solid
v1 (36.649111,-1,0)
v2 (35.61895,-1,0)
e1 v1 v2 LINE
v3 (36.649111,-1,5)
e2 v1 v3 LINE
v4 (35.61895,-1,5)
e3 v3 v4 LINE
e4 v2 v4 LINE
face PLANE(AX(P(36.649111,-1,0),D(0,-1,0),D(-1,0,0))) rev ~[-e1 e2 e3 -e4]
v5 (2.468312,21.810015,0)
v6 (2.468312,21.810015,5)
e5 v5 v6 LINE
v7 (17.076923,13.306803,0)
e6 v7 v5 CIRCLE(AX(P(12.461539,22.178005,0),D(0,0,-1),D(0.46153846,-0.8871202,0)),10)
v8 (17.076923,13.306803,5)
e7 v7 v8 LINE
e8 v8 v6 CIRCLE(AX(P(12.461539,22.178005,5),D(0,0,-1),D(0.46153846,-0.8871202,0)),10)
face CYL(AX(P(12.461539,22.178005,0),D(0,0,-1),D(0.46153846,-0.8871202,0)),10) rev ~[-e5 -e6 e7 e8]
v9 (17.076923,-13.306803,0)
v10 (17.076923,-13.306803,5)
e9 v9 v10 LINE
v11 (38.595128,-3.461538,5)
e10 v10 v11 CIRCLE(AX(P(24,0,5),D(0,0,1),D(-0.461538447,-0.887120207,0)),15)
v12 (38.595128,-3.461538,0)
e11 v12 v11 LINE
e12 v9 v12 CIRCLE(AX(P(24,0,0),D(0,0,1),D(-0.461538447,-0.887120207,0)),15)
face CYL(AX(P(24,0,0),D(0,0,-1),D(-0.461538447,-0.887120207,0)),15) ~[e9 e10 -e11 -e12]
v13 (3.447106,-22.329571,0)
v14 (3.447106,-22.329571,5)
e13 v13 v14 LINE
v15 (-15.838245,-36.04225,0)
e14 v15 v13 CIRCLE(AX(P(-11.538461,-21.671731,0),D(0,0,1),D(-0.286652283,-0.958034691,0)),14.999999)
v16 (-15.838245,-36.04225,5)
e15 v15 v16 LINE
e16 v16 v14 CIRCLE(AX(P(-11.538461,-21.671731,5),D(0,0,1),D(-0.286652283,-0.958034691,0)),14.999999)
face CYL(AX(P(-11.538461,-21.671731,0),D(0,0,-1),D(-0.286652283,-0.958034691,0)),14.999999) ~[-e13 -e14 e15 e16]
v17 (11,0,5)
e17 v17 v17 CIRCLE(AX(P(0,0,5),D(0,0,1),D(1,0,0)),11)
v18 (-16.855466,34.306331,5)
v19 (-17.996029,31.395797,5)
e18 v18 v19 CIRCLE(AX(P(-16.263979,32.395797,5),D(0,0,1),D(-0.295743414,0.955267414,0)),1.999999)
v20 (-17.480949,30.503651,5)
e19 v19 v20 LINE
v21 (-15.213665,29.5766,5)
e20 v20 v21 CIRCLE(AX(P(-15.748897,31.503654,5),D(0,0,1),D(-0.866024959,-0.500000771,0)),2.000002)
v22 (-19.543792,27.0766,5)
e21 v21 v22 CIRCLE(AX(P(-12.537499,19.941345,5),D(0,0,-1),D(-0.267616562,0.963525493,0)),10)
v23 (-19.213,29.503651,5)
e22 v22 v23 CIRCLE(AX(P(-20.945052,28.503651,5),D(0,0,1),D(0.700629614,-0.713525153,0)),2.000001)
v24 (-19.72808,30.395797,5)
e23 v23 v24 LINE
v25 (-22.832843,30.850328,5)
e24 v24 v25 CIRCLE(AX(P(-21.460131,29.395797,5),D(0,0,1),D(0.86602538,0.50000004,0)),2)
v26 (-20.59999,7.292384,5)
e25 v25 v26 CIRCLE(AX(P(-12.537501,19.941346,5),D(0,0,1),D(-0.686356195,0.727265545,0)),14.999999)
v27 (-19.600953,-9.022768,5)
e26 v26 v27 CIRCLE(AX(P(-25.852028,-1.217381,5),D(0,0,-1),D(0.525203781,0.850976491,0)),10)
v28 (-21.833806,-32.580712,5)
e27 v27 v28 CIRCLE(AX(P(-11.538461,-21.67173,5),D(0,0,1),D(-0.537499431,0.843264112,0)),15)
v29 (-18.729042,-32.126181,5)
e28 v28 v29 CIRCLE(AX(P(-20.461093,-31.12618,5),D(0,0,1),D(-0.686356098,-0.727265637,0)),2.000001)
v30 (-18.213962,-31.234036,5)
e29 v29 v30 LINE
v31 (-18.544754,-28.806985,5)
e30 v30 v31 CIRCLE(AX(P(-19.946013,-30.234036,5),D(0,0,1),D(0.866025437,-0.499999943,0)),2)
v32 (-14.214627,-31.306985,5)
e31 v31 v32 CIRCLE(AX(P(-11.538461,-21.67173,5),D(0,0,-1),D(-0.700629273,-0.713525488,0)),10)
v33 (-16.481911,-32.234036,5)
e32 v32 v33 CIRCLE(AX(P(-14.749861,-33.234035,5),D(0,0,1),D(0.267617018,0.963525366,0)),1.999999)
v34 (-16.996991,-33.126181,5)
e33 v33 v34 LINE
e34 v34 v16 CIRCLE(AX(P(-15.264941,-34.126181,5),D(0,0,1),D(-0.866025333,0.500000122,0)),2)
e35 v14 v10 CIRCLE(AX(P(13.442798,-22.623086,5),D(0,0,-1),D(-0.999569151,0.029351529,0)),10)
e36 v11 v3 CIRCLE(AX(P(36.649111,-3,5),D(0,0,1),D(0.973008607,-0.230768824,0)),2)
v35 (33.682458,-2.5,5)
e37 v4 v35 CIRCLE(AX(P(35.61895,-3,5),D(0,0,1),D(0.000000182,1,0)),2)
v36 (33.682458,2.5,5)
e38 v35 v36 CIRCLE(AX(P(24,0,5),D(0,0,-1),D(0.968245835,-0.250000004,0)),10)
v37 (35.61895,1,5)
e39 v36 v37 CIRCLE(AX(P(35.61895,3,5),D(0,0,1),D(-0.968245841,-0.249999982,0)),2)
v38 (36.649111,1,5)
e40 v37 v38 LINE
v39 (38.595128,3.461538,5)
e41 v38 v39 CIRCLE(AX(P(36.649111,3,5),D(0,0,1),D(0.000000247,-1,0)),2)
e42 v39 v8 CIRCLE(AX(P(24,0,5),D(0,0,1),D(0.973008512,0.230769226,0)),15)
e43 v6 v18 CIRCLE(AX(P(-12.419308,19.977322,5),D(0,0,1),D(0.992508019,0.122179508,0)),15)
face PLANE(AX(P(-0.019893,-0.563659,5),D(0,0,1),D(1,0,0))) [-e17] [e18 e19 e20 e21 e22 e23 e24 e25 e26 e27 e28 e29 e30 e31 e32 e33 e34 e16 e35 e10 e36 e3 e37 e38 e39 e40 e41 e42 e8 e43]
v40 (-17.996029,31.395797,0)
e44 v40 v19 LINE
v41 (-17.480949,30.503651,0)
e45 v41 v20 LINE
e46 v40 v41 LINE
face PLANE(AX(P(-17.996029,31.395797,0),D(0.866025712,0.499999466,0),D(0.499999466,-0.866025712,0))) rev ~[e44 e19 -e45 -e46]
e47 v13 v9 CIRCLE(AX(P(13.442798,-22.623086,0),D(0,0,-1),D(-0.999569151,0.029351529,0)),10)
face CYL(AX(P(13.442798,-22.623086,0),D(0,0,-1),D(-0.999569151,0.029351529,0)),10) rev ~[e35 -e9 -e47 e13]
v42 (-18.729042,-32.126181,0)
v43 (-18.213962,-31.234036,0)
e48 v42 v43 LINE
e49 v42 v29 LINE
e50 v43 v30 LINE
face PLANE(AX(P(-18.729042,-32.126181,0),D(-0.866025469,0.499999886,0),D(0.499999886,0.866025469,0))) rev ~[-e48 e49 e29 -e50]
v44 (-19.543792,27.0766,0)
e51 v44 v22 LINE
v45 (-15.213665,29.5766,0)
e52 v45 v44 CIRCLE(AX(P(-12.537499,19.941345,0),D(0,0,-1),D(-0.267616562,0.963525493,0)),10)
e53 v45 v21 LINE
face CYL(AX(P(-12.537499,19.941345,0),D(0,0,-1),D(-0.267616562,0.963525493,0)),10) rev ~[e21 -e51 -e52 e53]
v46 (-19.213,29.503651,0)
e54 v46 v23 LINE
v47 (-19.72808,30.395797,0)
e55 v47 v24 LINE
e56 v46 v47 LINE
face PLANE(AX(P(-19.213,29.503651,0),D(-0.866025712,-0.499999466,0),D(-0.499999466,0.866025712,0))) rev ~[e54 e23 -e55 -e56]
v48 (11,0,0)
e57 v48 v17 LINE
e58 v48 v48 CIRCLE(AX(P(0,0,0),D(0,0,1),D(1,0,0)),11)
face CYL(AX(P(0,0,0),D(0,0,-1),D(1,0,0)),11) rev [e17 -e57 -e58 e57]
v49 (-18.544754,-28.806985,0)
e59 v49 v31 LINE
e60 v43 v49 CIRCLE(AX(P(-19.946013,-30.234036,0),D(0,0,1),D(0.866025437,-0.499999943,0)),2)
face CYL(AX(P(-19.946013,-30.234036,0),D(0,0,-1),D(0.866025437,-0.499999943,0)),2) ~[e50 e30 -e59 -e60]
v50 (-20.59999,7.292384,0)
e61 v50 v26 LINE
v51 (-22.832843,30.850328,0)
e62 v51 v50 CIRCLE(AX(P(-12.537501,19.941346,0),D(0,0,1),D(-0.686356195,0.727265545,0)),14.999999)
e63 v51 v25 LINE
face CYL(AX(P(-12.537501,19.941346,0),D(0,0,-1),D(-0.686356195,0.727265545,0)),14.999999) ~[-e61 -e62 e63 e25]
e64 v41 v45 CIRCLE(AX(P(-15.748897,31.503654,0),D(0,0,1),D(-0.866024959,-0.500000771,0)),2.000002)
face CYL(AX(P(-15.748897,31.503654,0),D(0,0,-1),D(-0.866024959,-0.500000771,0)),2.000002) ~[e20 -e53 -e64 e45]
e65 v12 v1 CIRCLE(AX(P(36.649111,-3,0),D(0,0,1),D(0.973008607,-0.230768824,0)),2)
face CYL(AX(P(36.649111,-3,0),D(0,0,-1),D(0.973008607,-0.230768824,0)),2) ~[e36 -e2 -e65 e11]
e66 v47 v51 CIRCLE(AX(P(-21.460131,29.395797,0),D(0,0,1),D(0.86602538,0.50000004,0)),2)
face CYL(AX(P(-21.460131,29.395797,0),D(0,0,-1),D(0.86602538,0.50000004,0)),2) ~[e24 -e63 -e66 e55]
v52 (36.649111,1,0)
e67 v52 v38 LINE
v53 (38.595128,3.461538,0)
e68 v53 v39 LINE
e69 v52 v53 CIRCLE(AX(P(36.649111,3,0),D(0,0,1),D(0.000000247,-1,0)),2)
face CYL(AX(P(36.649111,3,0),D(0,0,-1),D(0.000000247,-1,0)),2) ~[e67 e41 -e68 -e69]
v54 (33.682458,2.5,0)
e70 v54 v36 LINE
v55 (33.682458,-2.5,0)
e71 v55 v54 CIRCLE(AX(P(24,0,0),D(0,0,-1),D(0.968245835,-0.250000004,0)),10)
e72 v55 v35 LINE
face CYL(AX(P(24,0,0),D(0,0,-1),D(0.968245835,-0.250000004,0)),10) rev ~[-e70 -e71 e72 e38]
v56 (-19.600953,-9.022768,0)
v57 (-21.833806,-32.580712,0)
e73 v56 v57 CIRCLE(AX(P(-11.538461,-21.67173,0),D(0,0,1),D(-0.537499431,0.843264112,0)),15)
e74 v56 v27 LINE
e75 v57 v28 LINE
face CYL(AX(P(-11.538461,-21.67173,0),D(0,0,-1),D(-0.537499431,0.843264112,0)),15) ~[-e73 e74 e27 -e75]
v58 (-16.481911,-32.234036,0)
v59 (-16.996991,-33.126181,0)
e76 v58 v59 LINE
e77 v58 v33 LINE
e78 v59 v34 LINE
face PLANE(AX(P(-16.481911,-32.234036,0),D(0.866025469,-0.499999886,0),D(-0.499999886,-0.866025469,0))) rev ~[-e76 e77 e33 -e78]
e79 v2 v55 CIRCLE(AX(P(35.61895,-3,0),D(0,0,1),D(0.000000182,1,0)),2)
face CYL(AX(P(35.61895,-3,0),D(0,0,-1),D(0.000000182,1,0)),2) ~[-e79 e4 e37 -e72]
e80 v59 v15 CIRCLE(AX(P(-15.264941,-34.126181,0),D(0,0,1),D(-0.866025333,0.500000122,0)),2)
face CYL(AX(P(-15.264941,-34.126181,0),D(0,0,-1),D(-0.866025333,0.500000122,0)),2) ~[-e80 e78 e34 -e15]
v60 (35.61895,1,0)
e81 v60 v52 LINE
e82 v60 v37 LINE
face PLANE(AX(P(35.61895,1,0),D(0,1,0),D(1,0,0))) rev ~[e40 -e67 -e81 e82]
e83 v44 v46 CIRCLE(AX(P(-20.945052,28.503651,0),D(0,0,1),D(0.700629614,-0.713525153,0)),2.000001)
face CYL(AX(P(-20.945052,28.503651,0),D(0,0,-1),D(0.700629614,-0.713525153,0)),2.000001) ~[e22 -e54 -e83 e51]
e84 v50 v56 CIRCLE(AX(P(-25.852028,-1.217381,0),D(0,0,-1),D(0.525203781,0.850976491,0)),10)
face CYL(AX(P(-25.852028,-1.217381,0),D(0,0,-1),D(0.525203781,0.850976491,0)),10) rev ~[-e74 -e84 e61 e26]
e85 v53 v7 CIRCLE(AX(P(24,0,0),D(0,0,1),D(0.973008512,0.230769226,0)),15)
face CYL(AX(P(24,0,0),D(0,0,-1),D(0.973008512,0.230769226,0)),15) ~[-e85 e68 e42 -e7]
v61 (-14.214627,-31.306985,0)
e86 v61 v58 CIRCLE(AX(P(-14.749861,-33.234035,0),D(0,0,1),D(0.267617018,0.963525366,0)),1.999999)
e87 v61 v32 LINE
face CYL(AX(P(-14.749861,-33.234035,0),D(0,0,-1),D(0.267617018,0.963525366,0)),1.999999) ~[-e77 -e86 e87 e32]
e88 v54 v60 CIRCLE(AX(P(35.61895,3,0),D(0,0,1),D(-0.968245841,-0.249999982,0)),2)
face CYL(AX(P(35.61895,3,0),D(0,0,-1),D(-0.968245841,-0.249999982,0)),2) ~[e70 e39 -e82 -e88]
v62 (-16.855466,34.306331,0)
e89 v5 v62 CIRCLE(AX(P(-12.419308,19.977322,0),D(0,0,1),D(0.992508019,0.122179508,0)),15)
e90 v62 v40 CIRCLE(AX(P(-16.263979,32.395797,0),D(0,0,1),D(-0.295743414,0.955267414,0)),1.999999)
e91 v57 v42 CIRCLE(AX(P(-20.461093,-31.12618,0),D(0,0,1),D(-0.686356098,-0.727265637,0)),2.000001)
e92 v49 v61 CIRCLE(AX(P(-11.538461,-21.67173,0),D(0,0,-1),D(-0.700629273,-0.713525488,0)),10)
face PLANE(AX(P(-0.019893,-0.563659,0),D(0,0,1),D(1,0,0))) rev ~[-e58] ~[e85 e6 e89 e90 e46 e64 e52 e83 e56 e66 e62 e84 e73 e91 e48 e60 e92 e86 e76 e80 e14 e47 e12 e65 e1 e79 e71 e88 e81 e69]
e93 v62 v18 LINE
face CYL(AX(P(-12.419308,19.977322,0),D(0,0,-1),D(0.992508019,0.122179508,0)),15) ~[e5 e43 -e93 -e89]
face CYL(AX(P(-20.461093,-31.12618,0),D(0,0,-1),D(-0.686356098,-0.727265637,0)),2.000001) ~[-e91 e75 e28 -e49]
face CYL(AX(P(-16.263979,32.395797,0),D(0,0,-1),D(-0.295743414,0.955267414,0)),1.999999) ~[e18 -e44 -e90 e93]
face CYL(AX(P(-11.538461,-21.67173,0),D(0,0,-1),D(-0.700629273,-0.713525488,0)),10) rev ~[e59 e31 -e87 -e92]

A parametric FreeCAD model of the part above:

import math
import FreeCAD as App
import Part
import Sketcher
Q = App.Units.Quantity

doc = App.newDocument("Part")
body = doc.addObject("PartDesign::Body", "Body")

# Sketch on XY plane
sketch1 = doc.addObject("Sketcher::SketchObject", "Sketch")
body.addObject(sketch1)
sketch1.AttachmentSupport = (doc.XY_Plane, [""])
sketch1.MapMode = "FlatFace"
sketch1.addGeometry(Part.ArcOfCircle(Part.Circle(App.Vector(24, 0, 0), App.Vector(0, 0, 1), 10), math.radians(14), math.radians(346)), False)
sketch1.addGeometry(Part.ArcOfCircle(Part.Circle(App.Vector(35.6, 3, 0), App.Vector(0, 0, 1), 2), math.radians(-166), math.radians(-90)), False)
sketch1.addGeometry(Part.LineSegment(App.Vector(35.6, 1, 0), App.Vector(36.6, 1, 0)), False)
sketch1.addGeometry(Part.ArcOfCircle(Part.Circle(App.Vector(36.6, 3, 0), App.Vector(0, 0, 1), 2), math.radians(-90), math.radians(13)), False)
sketch1.addGeometry(Part.ArcOfCircle(Part.Circle(App.Vector(24, 0, 0), App.Vector(0, 0, 1), 15), math.radians(13), math.radians(117)), False)
sketch1.addGeometry(Part.ArcOfCircle(Part.Circle(App.Vector(12.5, 22.2, 0), App.Vector(0, 0, 1), 10), math.radians(-178), math.radians(-63)), False)
sketch1.addGeometry(Part.ArcOfCircle(Part.Circle(App.Vector(-12.4, 20, 0), App.Vector(0, 0, 1), 15), math.radians(7), math.radians(107)), False)
sketch1.addGeometry(Part.ArcOfCircle(Part.Circle(App.Vector(-16.3, 32.4, 0), App.Vector(0, 0, 1), 2), math.radians(107), math.radians(210)), False)
sketch1.addGeometry(Part.LineSegment(App.Vector(-18, 31.4, 0), App.Vector(-17.5, 30.5, 0)), False)
sketch1.addGeometry(Part.ArcOfCircle(Part.Circle(App.Vector(-15.7, 31.5, 0), App.Vector(0, 0, 1), 2), math.radians(-150), math.radians(-74)), False)
sketch1.addGeometry(Part.ArcOfCircle(Part.Circle(App.Vector(-12.5, 19.9, 0), App.Vector(0, 0, 1), 10), math.radians(134), math.radians(466)), False)
sketch1.addGeometry(Part.ArcOfCircle(Part.Circle(App.Vector(-20.9, 28.5, 0), App.Vector(0, 0, 1), 2), math.radians(-46), math.radians(30)), False)
sketch1.addGeometry(Part.LineSegment(App.Vector(-19.2, 29.5, 0), App.Vector(-19.7, 30.4, 0)), False)
sketch1.addGeometry(Part.ArcOfCircle(Part.Circle(App.Vector(-21.5, 29.4, 0), App.Vector(0, 0, 1), 2), math.radians(30), math.radians(133)), False)
sketch1.addGeometry(Part.ArcOfCircle(Part.Circle(App.Vector(-12.5, 19.9, 0), App.Vector(0, 0, 1), 15), math.radians(133), math.radians(237)), False)
sketch1.addGeometry(Part.ArcOfCircle(Part.Circle(App.Vector(-25.9, -1.2, 0), App.Vector(0, 0, 1), 10), math.radians(-51), math.radians(58)), False)
sketch1.addGeometry(Part.ArcOfCircle(Part.Circle(App.Vector(-11.5, -21.7, 0), App.Vector(0, 0, 1), 15), math.radians(123), math.radians(227)), False)
sketch1.addGeometry(Part.ArcOfCircle(Part.Circle(App.Vector(-20.5, -31.1, 0), App.Vector(0, 0, 1), 2), math.radians(-133), math.radians(-30)), False)
sketch1.addGeometry(Part.LineSegment(App.Vector(-18.7, -32.1, 0), App.Vector(-18.2, -31.2, 0)), False)
sketch1.addGeometry(Part.ArcOfCircle(Part.Circle(App.Vector(-19.9, -30.2, 0), App.Vector(0, 0, 1), 2), math.radians(-30), math.radians(46)), False)
sketch1.addGeometry(Part.ArcOfCircle(Part.Circle(App.Vector(-11.5, -21.7, 0), App.Vector(0, 0, 1), 10), math.radians(-106), math.radians(226)), False)
sketch1.addGeometry(Part.ArcOfCircle(Part.Circle(App.Vector(-14.7, -33.2, 0), App.Vector(0, 0, 1), 2), math.radians(74), math.radians(150)), False)
sketch1.addGeometry(Part.LineSegment(App.Vector(-16.5, -32.2, 0), App.Vector(-17, -33.1, 0)), False)
sketch1.addGeometry(Part.ArcOfCircle(Part.Circle(App.Vector(-15.3, -34.1, 0), App.Vector(0, 0, 1), 2), math.radians(150), math.radians(253)), False)
sketch1.addGeometry(Part.ArcOfCircle(Part.Circle(App.Vector(-11.5, -21.7, 0), App.Vector(0, 0, 1), 15), math.radians(-107), math.radians(-3)), False)
sketch1.addGeometry(Part.ArcOfCircle(Part.Circle(App.Vector(13.4, -22.6, 0), App.Vector(0, 0, 1), 10), math.radians(69), math.radians(178)), False)
sketch1.addGeometry(Part.ArcOfCircle(Part.Circle(App.Vector(24, 0, 0), App.Vector(0, 0, 1), 15), math.radians(-117), math.radians(-13)), False)
sketch1.addGeometry(Part.ArcOfCircle(Part.Circle(App.Vector(36.6, -3, 0), App.Vector(0, 0, 1), 2), math.radians(-13), math.radians(90)), False)
sketch1.addGeometry(Part.LineSegment(App.Vector(36.6, -1, 0), App.Vector(35.6, -1, 0)), False)
sketch1.addGeometry(Part.ArcOfCircle(Part.Circle(App.Vector(35.6, -3, 0), App.Vector(0, 0, 1), 2), math.radians(90), math.radians(166)), False)
sketch1.addGeometry(Part.Circle(App.Vector(0, 0, 0), App.Vector(0, 0, 1), 11), False)
sketch1.addConstraint(Sketcher.Constraint("Tangent", 0, 1, 1, 1))
sketch1.addConstraint(Sketcher.Constraint("Tangent", 1, 2, 2, 1))
sketch1.addConstraint(Sketcher.Constraint("Tangent", 2, 2, 3, 1))
sketch1.addConstraint(Sketcher.Constraint("Tangent", 3, 2, 4, 1))
sketch1.addConstraint(Sketcher.Constraint("Tangent", 4, 2, 5, 2))
sketch1.addConstraint(Sketcher.Constraint("Coincident", 5, 1, 6, 1))
sketch1.addConstraint(Sketcher.Constraint("Tangent", 6, 2, 7, 1))
sketch1.addConstraint(Sketcher.Constraint("Tangent", 7, 2, 8, 1))
sketch1.addConstraint(Sketcher.Constraint("Tangent", 8, 2, 9, 1))
sketch1.addConstraint(Sketcher.Constraint("Tangent", 9, 2, 10, 2))
sketch1.addConstraint(Sketcher.Constraint("Tangent", 10, 1, 11, 1))
sketch1.addConstraint(Sketcher.Constraint("Tangent", 11, 2, 12, 1))
sketch1.addConstraint(Sketcher.Constraint("Tangent", 12, 2, 13, 1))
sketch1.addConstraint(Sketcher.Constraint("Tangent", 13, 2, 14, 1))
sketch1.addConstraint(Sketcher.Constraint("Coincident", 14, 2, 15, 2))
sketch1.addConstraint(Sketcher.Constraint("Coincident", 15, 1, 16, 1))
sketch1.addConstraint(Sketcher.Constraint("Tangent", 16, 2, 17, 1))
sketch1.addConstraint(Sketcher.Constraint("Tangent", 17, 2, 18, 1))
sketch1.addConstraint(Sketcher.Constraint("Tangent", 18, 2, 19, 1))
sketch1.addConstraint(Sketcher.Constraint("Tangent", 19, 2, 20, 2))
sketch1.addConstraint(Sketcher.Constraint("Tangent", 20, 1, 21, 1))
sketch1.addConstraint(Sketcher.Constraint("Tangent", 21, 2, 22, 1))
sketch1.addConstraint(Sketcher.Constraint("Tangent", 22, 2, 23, 1))
sketch1.addConstraint(Sketcher.Constraint("Tangent", 23, 2, 24, 1))
sketch1.addConstraint(Sketcher.Constraint("Coincident", 24, 2, 25, 2))
sketch1.addConstraint(Sketcher.Constraint("Coincident", 25, 1, 26, 1))
sketch1.addConstraint(Sketcher.Constraint("Tangent", 26, 2, 27, 1))
sketch1.addConstraint(Sketcher.Constraint("Tangent", 27, 2, 28, 1))
sketch1.addConstraint(Sketcher.Constraint("Tangent", 28, 2, 29, 1))
sketch1.addConstraint(Sketcher.Constraint("Tangent", 29, 2, 0, 2))
sketch1.addConstraint(Sketcher.Constraint("Horizontal", 2))
sketch1.addConstraint(Sketcher.Constraint("Horizontal", 28))
sketch1.addConstraint(Sketcher.Constraint("Coincident", 30, 3, -1, 1))
sketch1.addConstraint(Sketcher.Constraint("Coincident", 4, 3, 0, 3))
sketch1.addConstraint(Sketcher.Constraint("Coincident", 14, 3, 10, 3))
sketch1.addConstraint(Sketcher.Constraint("Coincident", 20, 3, 16, 3))
sketch1.addConstraint(Sketcher.Constraint("Coincident", 24, 3, 16, 3))
sketch1.addConstraint(Sketcher.Constraint("Coincident", 26, 3, 0, 3))
sketch1.addConstraint(Sketcher.Constraint("Equal", 1, 3))
sketch1.addConstraint(Sketcher.Constraint("Equal", 0, 5))
sketch1.addConstraint(Sketcher.Constraint("Equal", 4, 6))
sketch1.addConstraint(Sketcher.Constraint("Equal", 3, 7))
sketch1.addConstraint(Sketcher.Constraint("Equal", 5, 10))
sketch1.addConstraint(Sketcher.Constraint("Equal", 9, 11))
sketch1.addConstraint(Sketcher.Constraint("Equal", 11, 13))
sketch1.addConstraint(Sketcher.Constraint("Equal", 6, 14))
sketch1.addConstraint(Sketcher.Constraint("Equal", 10, 15))
sketch1.addConstraint(Sketcher.Constraint("Equal", 14, 16))
sketch1.addConstraint(Sketcher.Constraint("Equal", 13, 17))
sketch1.addConstraint(Sketcher.Constraint("Equal", 17, 19))
sketch1.addConstraint(Sketcher.Constraint("Equal", 15, 20))
sketch1.addConstraint(Sketcher.Constraint("Equal", 19, 21))
sketch1.addConstraint(Sketcher.Constraint("Equal", 21, 23))
sketch1.addConstraint(Sketcher.Constraint("Equal", 16, 24))
sketch1.addConstraint(Sketcher.Constraint("Equal", 20, 25))
sketch1.addConstraint(Sketcher.Constraint("Equal", 24, 26))
sketch1.addConstraint(Sketcher.Constraint("Equal", 23, 27))
sketch1.addConstraint(Sketcher.Constraint("Equal", 27, 29))
sketch1.addConstraint(Sketcher.Constraint("Symmetric", 3, 3, 27, 3, -1))
sketch1.addConstraint(Sketcher.Constraint("Symmetric", 4, 2, 25, 1, -1))
sketch1.addConstraint(Sketcher.Constraint("Parallel", 8, 12))
sketch1.addConstraint(Sketcher.Constraint("Parallel", 18, 22))
sketch1.addConstraint(Sketcher.Constraint("Equal", 8, 12))
sketch1.addConstraint(Sketcher.Constraint("Equal", 12, 18))
sketch1.addConstraint(Sketcher.Constraint("Equal", 18, 22))
sketch1.addConstraint(Sketcher.Constraint("Diameter", 30, 22.0))
sketch1.addConstraint(Sketcher.Constraint("Radius", 0, 10.0))
sketch1.addConstraint(Sketcher.Constraint("Radius", 1, 2.0))
sketch1.addConstraint(Sketcher.Constraint("Radius", 4, 15.0))
sketch1.addConstraint(Sketcher.Constraint("Angle", 18, Q("60.000008 deg")))
sketch1.addConstraint(Sketcher.Constraint("DistanceX", -1, 1, 0, 3, 24.0))
sketch1.addConstraint(Sketcher.Constraint("DistanceY", -1, 1, 1, 3, 3.0))
sketch1.addConstraint(Sketcher.Constraint("DistanceY", 13, 3, 7, 3, 3.0))
sketch1.addConstraint(Sketcher.Constraint("DistanceY", 21, 3, 19, 3, 2.999999))
sketch1.addConstraint(Sketcher.Constraint("DistanceY", 7, 2, 7, 3, 1.0))
sketch1.addConstraint(Sketcher.Constraint("DistanceX", 11, 2, -1, 1, 19.213))
sketch1.addConstraint(Sketcher.Constraint("DistanceY", -1, 1, 9, 2, 29.5766))
sketch1.addConstraint(Sketcher.Constraint("DistanceY", 17, 3, 15, 3, 29.908799))
sketch1.addConstraint(Sketcher.Constraint("DistanceY", 4, 2, 5, 3, 8.871202))
sketch1.addConstraint(Sketcher.Constraint("DistanceX", 6, 2, 9, 2, 1.641801))
sketch1.addConstraint(Sketcher.Constraint("DistanceX", 14, 2, 10, 1, 1.056198))
sketch1.addConstraint(Sketcher.Constraint("DistanceY", 15, 3, -1, 1, 1.217381))
sketch1.addConstraint(Sketcher.Constraint("DistanceX", 16, 3, -1, 1, 11.538461))
sketch1.addConstraint(Sketcher.Constraint("DistanceY", 24, 2, -1, 1, 22.329571))
pad1 = doc.addObject("PartDesign::Pad", "Pad")
body.addObject(pad1)
pad1.Profile = sketch1
pad1.Length = 5

doc.recompute()
